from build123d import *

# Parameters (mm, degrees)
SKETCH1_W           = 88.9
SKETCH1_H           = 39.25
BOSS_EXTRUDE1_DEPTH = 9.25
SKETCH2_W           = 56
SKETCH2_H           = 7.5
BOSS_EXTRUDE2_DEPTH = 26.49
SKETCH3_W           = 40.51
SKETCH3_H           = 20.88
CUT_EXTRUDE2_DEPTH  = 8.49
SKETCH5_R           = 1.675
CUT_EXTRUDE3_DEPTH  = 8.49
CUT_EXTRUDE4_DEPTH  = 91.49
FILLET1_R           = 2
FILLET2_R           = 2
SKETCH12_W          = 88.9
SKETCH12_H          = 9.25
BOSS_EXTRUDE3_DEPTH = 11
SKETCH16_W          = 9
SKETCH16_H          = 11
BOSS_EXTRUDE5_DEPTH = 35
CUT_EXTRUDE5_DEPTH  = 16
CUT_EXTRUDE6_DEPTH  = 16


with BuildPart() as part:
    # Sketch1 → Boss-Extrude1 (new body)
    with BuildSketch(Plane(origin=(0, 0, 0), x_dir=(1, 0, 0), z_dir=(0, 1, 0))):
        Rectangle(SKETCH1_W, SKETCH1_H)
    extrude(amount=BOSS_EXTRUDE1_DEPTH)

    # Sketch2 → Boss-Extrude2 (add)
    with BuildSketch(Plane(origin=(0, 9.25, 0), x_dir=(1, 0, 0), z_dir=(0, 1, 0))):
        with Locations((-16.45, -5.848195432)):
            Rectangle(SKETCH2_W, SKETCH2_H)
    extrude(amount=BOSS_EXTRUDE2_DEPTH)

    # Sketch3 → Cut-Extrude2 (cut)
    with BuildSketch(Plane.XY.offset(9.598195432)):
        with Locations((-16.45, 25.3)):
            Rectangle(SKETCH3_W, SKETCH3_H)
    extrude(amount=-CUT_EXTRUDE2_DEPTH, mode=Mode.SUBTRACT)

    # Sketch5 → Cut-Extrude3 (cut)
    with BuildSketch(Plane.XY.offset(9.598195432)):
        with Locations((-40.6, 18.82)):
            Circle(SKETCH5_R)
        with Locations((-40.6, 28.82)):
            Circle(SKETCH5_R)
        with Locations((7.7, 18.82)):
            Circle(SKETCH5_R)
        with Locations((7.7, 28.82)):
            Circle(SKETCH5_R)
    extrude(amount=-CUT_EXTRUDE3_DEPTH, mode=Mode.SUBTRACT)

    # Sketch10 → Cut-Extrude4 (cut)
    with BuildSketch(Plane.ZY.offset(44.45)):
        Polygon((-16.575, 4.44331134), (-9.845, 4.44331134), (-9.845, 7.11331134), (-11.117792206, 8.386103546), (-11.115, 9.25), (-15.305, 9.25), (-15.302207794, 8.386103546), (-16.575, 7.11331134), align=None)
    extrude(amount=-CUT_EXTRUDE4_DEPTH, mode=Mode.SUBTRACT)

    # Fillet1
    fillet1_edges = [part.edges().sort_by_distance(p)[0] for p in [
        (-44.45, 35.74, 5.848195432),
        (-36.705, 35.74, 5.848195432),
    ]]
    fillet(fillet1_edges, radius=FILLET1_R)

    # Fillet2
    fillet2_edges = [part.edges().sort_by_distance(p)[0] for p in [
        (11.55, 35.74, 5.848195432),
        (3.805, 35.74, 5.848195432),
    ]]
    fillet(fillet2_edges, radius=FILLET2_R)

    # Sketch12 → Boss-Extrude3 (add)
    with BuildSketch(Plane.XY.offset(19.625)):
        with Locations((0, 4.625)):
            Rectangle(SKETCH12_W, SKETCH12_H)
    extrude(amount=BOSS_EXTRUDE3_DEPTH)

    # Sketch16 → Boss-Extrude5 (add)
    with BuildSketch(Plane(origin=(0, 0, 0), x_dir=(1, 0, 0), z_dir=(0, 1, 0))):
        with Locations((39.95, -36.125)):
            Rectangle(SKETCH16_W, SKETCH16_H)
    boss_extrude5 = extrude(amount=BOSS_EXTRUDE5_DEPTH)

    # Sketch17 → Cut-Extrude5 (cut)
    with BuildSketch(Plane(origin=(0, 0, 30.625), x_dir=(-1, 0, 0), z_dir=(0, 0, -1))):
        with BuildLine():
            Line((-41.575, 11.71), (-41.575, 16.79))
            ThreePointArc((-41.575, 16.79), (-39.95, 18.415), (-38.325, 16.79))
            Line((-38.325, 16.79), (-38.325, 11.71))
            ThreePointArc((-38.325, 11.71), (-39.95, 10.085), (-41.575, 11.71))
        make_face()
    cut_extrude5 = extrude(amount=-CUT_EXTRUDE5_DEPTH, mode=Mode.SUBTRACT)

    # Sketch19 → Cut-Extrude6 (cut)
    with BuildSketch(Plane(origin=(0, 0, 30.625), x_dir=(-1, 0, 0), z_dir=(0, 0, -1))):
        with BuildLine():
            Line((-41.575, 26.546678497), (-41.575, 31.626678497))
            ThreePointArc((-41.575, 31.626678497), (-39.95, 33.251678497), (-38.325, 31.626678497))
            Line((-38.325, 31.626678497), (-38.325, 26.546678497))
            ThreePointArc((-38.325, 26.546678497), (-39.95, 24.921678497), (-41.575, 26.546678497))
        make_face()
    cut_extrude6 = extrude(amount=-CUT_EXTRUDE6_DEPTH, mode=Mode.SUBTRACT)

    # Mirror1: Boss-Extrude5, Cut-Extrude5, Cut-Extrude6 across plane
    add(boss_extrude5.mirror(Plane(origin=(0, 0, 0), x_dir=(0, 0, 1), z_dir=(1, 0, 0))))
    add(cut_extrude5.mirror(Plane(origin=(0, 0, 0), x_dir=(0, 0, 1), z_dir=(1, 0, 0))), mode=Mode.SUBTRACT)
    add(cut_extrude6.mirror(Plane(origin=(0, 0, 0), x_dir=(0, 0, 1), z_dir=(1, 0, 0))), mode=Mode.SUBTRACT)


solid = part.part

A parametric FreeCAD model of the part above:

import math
import FreeCAD as App
import Part
import Sketcher
from FreeCAD import Vector
Q = App.Units.Quantity


def edges_at(feature, points):
    """Names of the edges that pass closest to the given points."""
    edges = feature.Shape.Edges
    near = lambda p: min(range(len(edges)), key=lambda i: edges[i].distToShape(Part.Vertex(*p))[0])
    return sorted({f"Edge{near(p) + 1}" for p in points})


def add_polygon(sketch, points):
    """Adds a closed chain of lines whose ends are joined by coincident constraints."""
    first, n = sketch.GeometryCount, len(points)
    for a, b in zip(points, points[1:] + points[:1]):
        sketch.addGeometry(Part.LineSegment(App.Vector(*a, 0), App.Vector(*b, 0)), False)
    for i in range(n):
        sketch.addConstraint(Sketcher.Constraint("Coincident", first + i, 2, first + (i + 1) % n, 1))

doc = App.newDocument("Part")
body = doc.addObject("PartDesign::Body", "Body")

# Sketch on XZ plane
sketch1 = body.newObject("Sketcher::SketchObject", "Sketch")
sketch1.AttachmentSupport = (doc.getObject("XZ_Plane"), [""])
sketch1.MapMode = "FlatFace"
add_polygon(sketch1, [(-44, -20), (-44, 20), (44, 20), (44, -20)])  # lines 0-3
sketch1.addConstraint([
    Sketcher.Constraint("Vertical", 0),
    Sketcher.Constraint("Horizontal", 1),
    Sketcher.Constraint("Vertical", 2),
    Sketcher.Constraint("Horizontal", 3),
    Sketcher.Constraint("Symmetric", 0, 2, 2, 2, -1, 1),
    Sketcher.Constraint("DistanceX", 1, 1, 1, 2, Q("88.9 mm")),
    Sketcher.Constraint("DistanceY", 0, 1, 0, 2, Q("39.25 mm")),
])
pad1 = body.newObject("PartDesign::Pad", "Pad")
pad1.Profile = sketch1
pad1.Length = 9.25
pad1.Reversed = True

# Sketch on XZ plane
sketch2 = body.newObject("Sketcher::SketchObject", "Sketch001")
sketch2.AttachmentSupport = (doc.getObject("XZ_Plane"), [""])
sketch2.MapMode = "FlatFace"
sketch2.AttachmentOffset = App.Placement(Vector(0, 0, -9.25), App.Rotation())
add_polygon(sketch2, [(-44, 2), (-44, 10), (12, 10), (12, 2)])  # lines 0-3
sketch2.addConstraint([
    Sketcher.Constraint("Vertical", 0),
    Sketcher.Constraint("Horizontal", 1),
    Sketcher.Constraint("Vertical", 2),
    Sketcher.Constraint("Horizontal", 3),
    Sketcher.Constraint("DistanceX", 1, 1, 1, 2, Q("56 mm")),
    Sketcher.Constraint("DistanceY", 0, 1, 0, 2, Q("7.5 mm")),
    Sketcher.Constraint("DistanceX", 0, 2, -1, 1, Q("44.45 mm")),
    Sketcher.Constraint("DistanceY", -1, 1, 0, 2, Q("9.598195 mm")),
])
pad2 = body.newObject("PartDesign::Pad", "Pad001")
pad2.Profile = sketch2
pad2.Length = 26.49
pad2.Reversed = True

# Sketch on XY plane
sketch3 = body.newObject("Sketcher::SketchObject", "Sketch002")
sketch3.AttachmentSupport = (doc.getObject("XY_Plane"), [""])
sketch3.MapMode = "FlatFace"
sketch3.AttachmentOffset = App.Placement(Vector(0, 0, 9.598195), App.Rotation())
add_polygon(sketch3, [(-37, 36), (-37, 15), (4, 15), (4, 36)])  # lines 0-3
sketch3.addConstraint([
    Sketcher.Constraint("Vertical", 0),
    Sketcher.Constraint("Horizontal", 1),
    Sketcher.Constraint("Vertical", 2),
    Sketcher.Constraint("Horizontal", 3),
    Sketcher.Constraint("DistanceX", 1, 1, 1, 2, Q("40.51 mm")),
    Sketcher.Constraint("DistanceY", 0, 2, 0, 1, Q("20.88 mm")),
    Sketcher.Constraint("DistanceY", -1, 1, 0, 2, Q("14.86 mm")),
    Sketcher.Constraint("DistanceX", 0, 2, -1, 1, Q("36.705 mm")),
])
pocket1 = body.newObject("PartDesign::Pocket", "Pocket")
pocket1.Profile = sketch3
pocket1.Length = 8.49

# Sketch on XY plane
sketch4 = body.newObject("Sketcher::SketchObject", "Sketch003")
sketch4.AttachmentSupport = (doc.getObject("XY_Plane"), [""])
sketch4.MapMode = "FlatFace"
sketch4.AttachmentOffset = App.Placement(Vector(0, 0, 9.598195), App.Rotation())
sketch4.addGeometry([
    Part.Circle(Vector(-40.6, 18.8, 0), Vector(0, 0, 1), 1.7),
    Part.Circle(Vector(-40.6, 28.8, 0), Vector(0, 0, 1), 1.7),
    Part.Circle(Vector(7.7, 18.8, 0), Vector(0, 0, 1), 1.7),
    Part.Circle(Vector(7.7, 28.8, 0), Vector(0, 0, 1), 1.7),
], False)
sketch4.addConstraint([
    Sketcher.Constraint("Equal", 0, 1),
    Sketcher.Constraint("Equal", 1, 2),
    Sketcher.Constraint("Equal", 2, 3),
    Sketcher.Constraint("Horizontal", 0, 3, 2, 3),
    Sketcher.Constraint("Horizontal", 1, 3, 3, 3),
    Sketcher.Constraint("Vertical", 0, 3, 1, 3),
    Sketcher.Constraint("Vertical", 2, 3, 3, 3),
    Sketcher.Constraint("Diameter", 0, Q("3.35 mm")),
    Sketcher.Constraint("DistanceY", 0, 3, 1, 3, Q("10 mm")),
    Sketcher.Constraint("DistanceX", 0, 3, -1, 1, Q("40.6 mm")),
    Sketcher.Constraint("DistanceX", -1, 1, 2, 3, Q("7.7 mm")),
    Sketcher.Constraint("DistanceY", -1, 1, 0, 3, Q("18.82 mm")),
])
pocket2 = body.newObject("PartDesign::Pocket", "Pocket001")
pocket2.Profile = sketch4
pocket2.Length = 8.49

# Sketch on YZ plane
sketch5 = body.newObject("Sketcher::SketchObject", "Sketch004")
sketch5.AttachmentSupport = (doc.getObject("YZ_Plane"), [""])
sketch5.MapMode = "FlatFace"
sketch5.AttachmentOffset = App.Placement(Vector(0, 0, -44.45), App.Rotation())
add_polygon(sketch5, [(4.443311, -16.575), (4.443311, -9.845), (7.113311, -9.845), (8.386104, -11.117792), (9.25, -11.115), (9.25, -15.305), (8.386104, -15.302208), (7.113311, -16.575)])  # lines 0-7
sketch5.addConstraint([
    Sketcher.Constraint("Vertical", 0),
    Sketcher.Constraint("Horizontal", 1),
    Sketcher.Constraint("Vertical", 4),
    Sketcher.Constraint("Horizontal", 7),
    Sketcher.Constraint("Perpendicular", 2, 6),
    Sketcher.Constraint("Vertical", 2, 2, 5, 2),
    Sketcher.Constraint("Vertical", 1, 2, 6, 2),
    Sketcher.Constraint("Equal", 3, 5),
    Sketcher.Constraint("Equal", 2, 6),
    Sketcher.Constraint("Distance", 2, Q("1.8 mm")),
    Sketcher.Constraint("DistanceX", 1, 1, 1, 2, Q("2.67 mm")),
    Sketcher.Constraint("DistanceY", 0, 1, 0, 2, Q("6.73 mm")),
    Sketcher.Constraint("DistanceY", 4, 2, 4, 1, Q("4.19 mm")),
    Sketcher.Constraint("DistanceX", -1, 1, 3, 2, Q("9.25 mm")),
    Sketcher.Constraint("DistanceY", 0, 2, -1, 1, Q("9.845 mm")),
    Sketcher.Constraint("Distance", 3, Q("0.863901 mm")),
])
pocket3 = body.newObject("PartDesign::Pocket", "Pocket002")
pocket3.Profile = sketch5
pocket3.Length = 91.49
pocket3.Reversed = True
doc.recompute()

fillet = body.newObject("PartDesign::Fillet", "Fillet")
fillet.Base = (pocket3, edges_at(pocket3, [(-44.45, 35.74, 5.848), (-36.705, 35.74, 5.848)]))
fillet.Radius = 2
doc.recompute()

fillet2 = body.newObject("PartDesign::Fillet", "Fillet001")
fillet2.Base = (fillet, edges_at(fillet, [(11.55, 35.74, 5.848), (3.805, 35.74, 5.848)]))
fillet2.Radius = 2

# Sketch on XY plane
sketch6 = body.newObject("Sketcher::SketchObject", "Sketch005")
sketch6.AttachmentSupport = (doc.getObject("XY_Plane"), [""])
sketch6.MapMode = "FlatFace"
sketch6.AttachmentOffset = App.Placement(Vector(0, 0, 19.625), App.Rotation())
add_polygon(sketch6, [(-44, 9), (-44, 0), (44, 0), (44, 9)])  # lines 0-3
sketch6.addConstraint([
    Sketcher.Constraint("Vertical", 0),
    Sketcher.Constraint("Horizontal", 1),
    Sketcher.Constraint("Vertical", 2),
    Sketcher.Constraint("Horizontal", 3),
    Sketcher.Constraint("Symmetric", 0, 2, 1, 2, -1, 1),
    Sketcher.Constraint("DistanceX", 1, 1, 1, 2, Q("88.9 mm")),
    Sketcher.Constraint("DistanceY", 0, 2, 0, 1, Q("9.25 mm")),
])
pad3 = body.newObject("PartDesign::Pad", "Pad002")
pad3.Profile = sketch6
pad3.Length = 11

# Sketch on XZ plane
sketch7 = body.newObject("Sketcher::SketchObject", "Sketch006")
sketch7.AttachmentSupport = (doc.getObject("XZ_Plane"), [""])
sketch7.MapMode = "FlatFace"
add_polygon(sketch7, [(35, 31), (35, 42), (44, 42), (44, 31)])  # lines 0-3
sketch7.addConstraint([
    Sketcher.Constraint("Vertical", 0),
    Sketcher.Constraint("Horizontal", 1),
    Sketcher.Constraint("Vertical", 2),
    Sketcher.Constraint("Horizontal", 3),
    Sketcher.Constraint("DistanceX", 1, 1, 1, 2, Q("9 mm")),
    Sketcher.Constraint("DistanceY", 0, 1, 0, 2, Q("11 mm")),
    Sketcher.Constraint("DistanceX", -1, 1, 0, 2, Q("35.45 mm")),
    Sketcher.Constraint("DistanceY", -1, 1, 0, 2, Q("41.625 mm")),
])
pad4 = body.newObject("PartDesign::Pad", "Pad003")
pad4.Profile = sketch7
pad4.Length = 35
pad4.Reversed = True

# Sketch on XY plane
sketch8 = body.newObject("Sketcher::SketchObject", "Sketch007")
sketch8.AttachmentSupport = (doc.getObject("XY_Plane"), [""])
sketch8.MapMode = "FlatFace"
sketch8.AttachmentOffset = App.Placement(Vector(0, 0, 30.625), App.Rotation())
sketch8.addGeometry([
    Part.LineSegment(Vector(41.6, 16.8, 0), Vector(41.6, 11.7, 0)),
    Part.ArcOfCircle(Part.Circle(Vector(40, 11.7, 0), Vector(0, 0, 1), 1.6), math.radians(180), math.radians(360)),
    Part.LineSegment(Vector(38.3, 11.7, 0), Vector(38.3, 16.8, 0)),
    Part.ArcOfCircle(Part.Circle(Vector(40, 16.8, 0), Vector(0, 0, 1), 1.6), math.radians(0), math.radians(180)),
], False)
sketch8.addConstraint([
    Sketcher.Constraint("Tangent", 0, 2, 1, 2),
    Sketcher.Constraint("Tangent", 1, 1, 2, 1),
    Sketcher.Constraint("Tangent", 2, 2, 3, 2),
    Sketcher.Constraint("Tangent", 3, 1, 0, 1),
    Sketcher.Constraint("Vertical", 0),
    Sketcher.Constraint("Vertical", 2),
    Sketcher.Constraint("Radius", 1, Q("1.625 mm")),
    Sketcher.Constraint("DistanceY", 0, 2, 0, 1, Q("5.08 mm")),
    Sketcher.Constraint("DistanceX", -1, 1, 1, 3, Q("39.95 mm")),
    Sketcher.Constraint("DistanceY", -1, 1, 1, 3, Q("11.71 mm")),
])
pocket4 = body.newObject("PartDesign::Pocket", "Pocket003")
pocket4.Profile = sketch8
pocket4.Length = 16
pocket4.Reversed = True

# Sketch on XY plane
sketch9 = body.newObject("Sketcher::SketchObject", "Sketch008")
sketch9.AttachmentSupport = (doc.getObject("XY_Plane"), [""])
sketch9.MapMode = "FlatFace"
sketch9.AttachmentOffset = App.Placement(Vector(0, 0, 30.625), App.Rotation())
sketch9.addGeometry([
    Part.LineSegment(Vector(41.6, 31.6, 0), Vector(41.6, 26.5, 0)),
    Part.ArcOfCircle(Part.Circle(Vector(40, 26.5, 0), Vector(0, 0, 1), 1.6), math.radians(180), math.radians(360)),
    Part.LineSegment(Vector(38.3, 26.5, 0), Vector(38.3, 31.6, 0)),
    Part.ArcOfCircle(Part.Circle(Vector(40, 31.6, 0), Vector(0, 0, 1), 1.6), math.radians(0), math.radians(180)),
], False)
sketch9.addConstraint([
    Sketcher.Constraint("Tangent", 0, 2, 1, 2),
    Sketcher.Constraint("Tangent", 1, 1, 2, 1),
    Sketcher.Constraint("Tangent", 2, 2, 3, 2),
    Sketcher.Constraint("Tangent", 3, 1, 0, 1),
    Sketcher.Constraint("Vertical", 0),
    Sketcher.Constraint("Vertical", 2),
    Sketcher.Constraint("Radius", 1, Q("1.625 mm")),
    Sketcher.Constraint("DistanceY", 0, 2, 0, 1, Q("5.08 mm")),
    Sketcher.Constraint("DistanceX", -1, 1, 1, 3, Q("39.95 mm")),
    Sketcher.Constraint("DistanceY", -1, 1, 1, 3, Q("26.546678 mm")),
])
pocket5 = body.newObject("PartDesign::Pocket", "Pocket004")
pocket5.Profile = sketch9
pocket5.Length = 16
pocket5.Reversed = True
doc.recompute()

mirrored = body.newObject("PartDesign::Mirrored", "Mirrored")
mirrored.Originals = [pad4, pocket4, pocket5]
mirrored.MirrorPlane = (doc.getObject("YZ_Plane"), [""])
body.Tip = mirrored

doc.recompute()
